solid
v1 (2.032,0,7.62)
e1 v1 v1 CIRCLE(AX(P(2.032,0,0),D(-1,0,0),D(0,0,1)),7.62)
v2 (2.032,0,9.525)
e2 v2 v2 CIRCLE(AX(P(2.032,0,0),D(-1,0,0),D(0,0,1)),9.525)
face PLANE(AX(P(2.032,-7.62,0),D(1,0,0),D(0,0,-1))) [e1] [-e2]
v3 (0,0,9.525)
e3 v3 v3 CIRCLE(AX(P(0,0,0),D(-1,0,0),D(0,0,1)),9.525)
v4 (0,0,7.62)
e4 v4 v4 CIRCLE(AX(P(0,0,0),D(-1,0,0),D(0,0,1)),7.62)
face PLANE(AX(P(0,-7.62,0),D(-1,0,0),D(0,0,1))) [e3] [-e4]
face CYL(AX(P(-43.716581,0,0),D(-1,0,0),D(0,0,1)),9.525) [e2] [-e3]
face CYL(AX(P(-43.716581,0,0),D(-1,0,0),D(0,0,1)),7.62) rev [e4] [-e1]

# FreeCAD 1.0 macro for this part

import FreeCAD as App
import Part
import Sketcher
from FreeCAD import Vector
Q = App.Units.Quantity

doc = App.newDocument("Part")
body = doc.addObject("PartDesign::Body", "Body")

sketch1 = doc.addObject("Sketcher::SketchObject", "Sketch")
body.addObject(sketch1)
sketch1.AttachmentSupport = (doc.XY_Plane, [""])
sketch1.MapMode = "FlatFace"
sketch1.addGeometry([
    Part.LineSegment(Vector(0, -7.62, 0), Vector(0, -9.525, 0)),
    Part.LineSegment(Vector(0, -9.525, 0), Vector(2.032, -9.525, 0)),
    Part.LineSegment(Vector(2.032, -9.525, 0), Vector(2.032, -7.62, 0)),
    Part.LineSegment(Vector(2.032, -7.62, 0), Vector(0, -7.62, 0)),
], False)
sketch1.addConstraint([
    Sketcher.Constraint("Coincident", 0, 2, 1, 1),
    Sketcher.Constraint("Coincident", 1, 2, 2, 1),
    Sketcher.Constraint("Coincident", 2, 2, 3, 1),
    Sketcher.Constraint("Coincident", 3, 2, 0, 1),
    Sketcher.Constraint("Vertical", 0),
    Sketcher.Constraint("Horizontal", 1),
    Sketcher.Constraint("Vertical", 2),
    Sketcher.Constraint("Horizontal", 3),
    Sketcher.Constraint("PointOnObject", 0, 2, -2),
    Sketcher.Constraint("DistanceX", 1, 1, 1, 2, Q("0.08 in")),
    Sketcher.Constraint("DistanceY", 2, 2, -1, 1, Q("0.3 in")),
    Sketcher.Constraint("DistanceY", 0, 2, 0, 1, Q("0.075 in")),
])
revolution = doc.addObject("PartDesign::Revolution", "Revolution")
body.addObject(revolution)
revolution.Profile = sketch1
revolution.ReferenceAxis = (sketch1, ["H_Axis"])
revolution.Angle = 360

doc.recompute()
